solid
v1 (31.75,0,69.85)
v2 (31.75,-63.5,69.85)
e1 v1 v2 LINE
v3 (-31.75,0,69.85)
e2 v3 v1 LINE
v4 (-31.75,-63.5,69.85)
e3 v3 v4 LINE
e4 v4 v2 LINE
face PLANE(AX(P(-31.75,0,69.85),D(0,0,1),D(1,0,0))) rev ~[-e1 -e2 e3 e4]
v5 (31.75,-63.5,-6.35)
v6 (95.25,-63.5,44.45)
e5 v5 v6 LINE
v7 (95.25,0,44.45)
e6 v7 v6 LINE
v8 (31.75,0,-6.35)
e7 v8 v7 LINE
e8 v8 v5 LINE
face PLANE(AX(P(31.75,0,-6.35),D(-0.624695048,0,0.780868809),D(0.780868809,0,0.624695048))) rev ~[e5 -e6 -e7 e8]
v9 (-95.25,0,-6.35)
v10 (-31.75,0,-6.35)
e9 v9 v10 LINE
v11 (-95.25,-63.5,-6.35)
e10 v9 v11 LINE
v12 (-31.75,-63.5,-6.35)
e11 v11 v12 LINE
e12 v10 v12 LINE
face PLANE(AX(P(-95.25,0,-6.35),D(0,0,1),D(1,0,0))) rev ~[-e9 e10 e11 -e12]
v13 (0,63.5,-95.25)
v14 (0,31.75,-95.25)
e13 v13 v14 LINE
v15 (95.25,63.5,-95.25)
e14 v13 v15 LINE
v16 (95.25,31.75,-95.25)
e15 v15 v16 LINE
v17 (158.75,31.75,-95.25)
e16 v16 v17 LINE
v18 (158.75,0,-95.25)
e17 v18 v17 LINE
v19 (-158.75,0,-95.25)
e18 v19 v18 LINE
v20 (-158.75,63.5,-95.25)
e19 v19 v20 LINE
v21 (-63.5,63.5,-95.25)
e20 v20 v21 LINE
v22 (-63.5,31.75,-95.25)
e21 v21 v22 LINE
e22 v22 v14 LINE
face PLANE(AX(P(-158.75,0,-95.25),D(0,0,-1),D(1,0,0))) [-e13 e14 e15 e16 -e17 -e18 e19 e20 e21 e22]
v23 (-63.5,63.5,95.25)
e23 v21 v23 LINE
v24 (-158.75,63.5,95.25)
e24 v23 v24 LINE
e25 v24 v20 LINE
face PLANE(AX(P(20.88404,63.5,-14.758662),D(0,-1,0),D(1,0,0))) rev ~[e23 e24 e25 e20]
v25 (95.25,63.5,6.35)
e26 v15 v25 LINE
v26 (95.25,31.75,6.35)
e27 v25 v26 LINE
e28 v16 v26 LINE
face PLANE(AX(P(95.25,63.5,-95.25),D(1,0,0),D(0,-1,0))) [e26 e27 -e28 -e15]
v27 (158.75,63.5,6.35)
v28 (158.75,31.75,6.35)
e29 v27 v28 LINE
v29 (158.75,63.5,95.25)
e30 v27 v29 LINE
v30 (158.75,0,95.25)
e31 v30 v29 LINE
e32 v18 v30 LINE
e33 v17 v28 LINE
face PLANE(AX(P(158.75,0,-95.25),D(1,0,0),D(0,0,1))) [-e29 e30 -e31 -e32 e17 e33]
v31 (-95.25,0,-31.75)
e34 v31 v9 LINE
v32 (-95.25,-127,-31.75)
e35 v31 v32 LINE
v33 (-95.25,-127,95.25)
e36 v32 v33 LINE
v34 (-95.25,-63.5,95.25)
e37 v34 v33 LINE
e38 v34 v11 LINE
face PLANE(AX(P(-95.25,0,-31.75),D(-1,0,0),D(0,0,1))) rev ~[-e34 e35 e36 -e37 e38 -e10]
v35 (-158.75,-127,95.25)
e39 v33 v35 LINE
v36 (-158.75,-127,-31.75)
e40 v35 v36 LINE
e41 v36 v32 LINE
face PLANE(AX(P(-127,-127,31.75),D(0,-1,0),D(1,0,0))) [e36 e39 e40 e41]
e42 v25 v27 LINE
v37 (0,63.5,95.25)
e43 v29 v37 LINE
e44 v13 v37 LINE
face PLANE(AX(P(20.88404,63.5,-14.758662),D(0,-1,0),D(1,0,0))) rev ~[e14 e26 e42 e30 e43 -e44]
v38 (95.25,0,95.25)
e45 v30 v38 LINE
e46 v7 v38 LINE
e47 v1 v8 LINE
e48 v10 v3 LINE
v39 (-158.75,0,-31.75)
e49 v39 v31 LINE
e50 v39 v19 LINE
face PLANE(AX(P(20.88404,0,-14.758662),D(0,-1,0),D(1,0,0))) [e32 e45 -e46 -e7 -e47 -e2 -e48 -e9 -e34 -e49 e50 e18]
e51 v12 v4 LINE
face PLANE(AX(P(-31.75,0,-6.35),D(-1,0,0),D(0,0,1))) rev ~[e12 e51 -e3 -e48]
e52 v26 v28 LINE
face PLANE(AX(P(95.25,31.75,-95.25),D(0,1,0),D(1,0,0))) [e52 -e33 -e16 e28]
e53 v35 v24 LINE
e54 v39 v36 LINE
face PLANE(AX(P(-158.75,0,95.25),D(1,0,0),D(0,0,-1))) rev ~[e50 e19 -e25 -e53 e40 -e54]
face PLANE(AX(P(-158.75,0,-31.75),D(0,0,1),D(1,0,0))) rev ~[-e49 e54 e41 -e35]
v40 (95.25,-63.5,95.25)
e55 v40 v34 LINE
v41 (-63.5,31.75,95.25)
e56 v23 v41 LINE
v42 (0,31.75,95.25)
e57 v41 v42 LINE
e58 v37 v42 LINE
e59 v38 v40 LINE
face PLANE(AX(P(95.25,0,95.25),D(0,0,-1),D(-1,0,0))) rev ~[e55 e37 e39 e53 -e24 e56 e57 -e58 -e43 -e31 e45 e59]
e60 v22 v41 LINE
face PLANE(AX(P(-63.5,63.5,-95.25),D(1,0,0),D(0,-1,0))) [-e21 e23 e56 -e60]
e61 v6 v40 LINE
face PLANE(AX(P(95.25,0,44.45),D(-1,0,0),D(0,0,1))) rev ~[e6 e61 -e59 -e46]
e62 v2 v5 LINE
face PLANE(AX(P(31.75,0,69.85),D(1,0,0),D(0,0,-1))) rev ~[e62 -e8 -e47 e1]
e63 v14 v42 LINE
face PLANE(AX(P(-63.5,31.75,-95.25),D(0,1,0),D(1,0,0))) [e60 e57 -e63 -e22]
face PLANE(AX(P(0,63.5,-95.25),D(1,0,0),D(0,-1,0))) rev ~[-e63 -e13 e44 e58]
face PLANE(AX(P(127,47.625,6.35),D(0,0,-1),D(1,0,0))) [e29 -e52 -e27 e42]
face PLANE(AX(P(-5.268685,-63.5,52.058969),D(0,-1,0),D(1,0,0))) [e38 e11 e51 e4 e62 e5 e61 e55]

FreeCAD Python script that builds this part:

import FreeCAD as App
import Part
import Sketcher

V = App.Vector
Q = App.Units.Quantity


def add_polygon(sketch, points):
    """Adds a closed chain of lines whose ends are joined by coincident constraints."""
    first, n = sketch.GeometryCount, len(points)
    for a, b in zip(points, points[1:] + points[:1]):
        sketch.addGeometry(Part.LineSegment(App.Vector(*a, 0), App.Vector(*b, 0)), False)
    for i in range(n):
        sketch.addConstraint(Sketcher.Constraint("Coincident", first + i, 2, first + (i + 1) % n, 1))

doc = App.newDocument("Part")
body = doc.addObject("PartDesign::Body", "Body")

sketch1 = body.newObject("Sketcher::SketchObject", "Sketch")
sketch1.AttachmentSupport = (doc.getObject("XZ_Plane"), [""])
sketch1.MapMode = "FlatFace"
add_polygon(sketch1, [(-159, -95), (159, -95), (159, 95), (-159, 95)])
sketch1.addConstraint([
    Sketcher.Constraint("Horizontal", 0),
    Sketcher.Constraint("Vertical", 1),
    Sketcher.Constraint("Horizontal", 2),
    Sketcher.Constraint("Vertical", 3),
    Sketcher.Constraint("Symmetric", 0, 2, 2, 2, -1, 1),
    Sketcher.Constraint("DistanceX", 0, 1, 0, 2, Q("12.5 in")),
    Sketcher.Constraint("DistanceY", 1, 1, 1, 2, Q("7.5 in")),
])
pad1 = body.newObject("PartDesign::Pad", "Pad")
pad1.Profile = sketch1
pad1.Length = Q("2.5 in")
pad1.Reversed = True

sketch2 = body.newObject("Sketcher::SketchObject", "Sketch001")
sketch2.AttachmentSupport = (doc.getObject("XZ_Plane"), [""])
sketch2.MapMode = "FlatFace"
add_polygon(sketch2, [(-159, 95), (-159, -32), (-95, -32), (-95, 95)])
sketch2.addConstraint([
    Sketcher.Constraint("Vertical", 0),
    Sketcher.Constraint("Horizontal", 1),
    Sketcher.Constraint("Vertical", 2),
    Sketcher.Constraint("Horizontal", 3),
    Sketcher.Constraint("DistanceY", 0, 2, 0, 1, Q("5 in")),
    Sketcher.Constraint("DistanceX", 1, 1, 1, 2, Q("2.5 in")),
    Sketcher.Constraint("DistanceX", 0, 2, -1, 1, Q("6.25 in")),
    Sketcher.Constraint("DistanceY", 0, 2, -1, 1, Q("1.25 in")),
])
pad2 = body.newObject("PartDesign::Pad", "Pad001")
pad2.Profile = sketch2
pad2.Length = Q("5 in")

sketch3 = body.newObject("Sketcher::SketchObject", "Sketch002")
sketch3.AttachmentSupport = (doc.getObject("XZ_Plane"), [""])
sketch3.MapMode = "FlatFace"
add_polygon(sketch3, [(95, 44), (95, 95), (-95, 95), (-95, -6), (-32, -6), (-32, 70), (32, 70), (32, -6)])
sketch3.addConstraint([
    Sketcher.Constraint("Vertical", 0),
    Sketcher.Constraint("Horizontal", 1),
    Sketcher.Constraint("Vertical", 2),
    Sketcher.Constraint("Horizontal", 3),
    Sketcher.Constraint("Vertical", 4),
    Sketcher.Constraint("Horizontal", 5),
    Sketcher.Constraint("Vertical", 6),
    Sketcher.Constraint("Symmetric", 3, 2, 6, 2, -2),
    Sketcher.Constraint("Equal", 3, 5),
    Sketcher.Constraint("DistanceY", 0, 1, 0, 2, Q("2 in")),
    Sketcher.Constraint("DistanceY", 2, 2, 2, 1, Q("4 in")),
    Sketcher.Constraint("DistanceY", 4, 1, 4, 2, Q("3 in")),
    Sketcher.Constraint("DistanceX", 1, 2, 1, 1, Q("7.5 in")),
    Sketcher.Constraint("DistanceX", 3, 1, 3, 2, Q("2.5 in")),
    Sketcher.Constraint("DistanceY", -1, 1, 0, 2, Q("3.75 in")),
])
pad3 = body.newObject("PartDesign::Pad", "Pad002")
pad3.Profile = sketch3
pad3.Length = Q("2.5 in")

sketch4 = body.newObject("Sketcher::SketchObject", "Sketch003")
sketch4.AttachmentSupport = (doc.getObject("XY_Plane"), [""])
sketch4.MapMode = "FlatFace"
sketch4.AttachmentOffset = App.Placement(V(0, 0, -3.75 * 25.4), App.Rotation())
add_polygon(sketch4, [(95, 32), (95, 64), (159, 64), (159, 32)])
sketch4.addConstraint([
    Sketcher.Constraint("Vertical", 0),
    Sketcher.Constraint("Horizontal", 1),
    Sketcher.Constraint("Vertical", 2),
    Sketcher.Constraint("Horizontal", 3),
    Sketcher.Constraint("DistanceX", 1, 1, 1, 2, Q("2.5 in")),
    Sketcher.Constraint("DistanceY", 0, 1, 0, 2, Q("1.25 in")),
    Sketcher.Constraint("DistanceY", -1, 1, 0, 2, Q("2.5 in")),
    Sketcher.Constraint("DistanceX", -1, 1, 0, 2, Q("3.75 in")),
])
pocket1 = body.newObject("PartDesign::Pocket", "Pocket")
pocket1.Profile = sketch4
pocket1.Length = Q("4 in")
pocket1.Reversed = True

sketch5 = body.newObject("Sketcher::SketchObject", "Sketch004")
sketch5.AttachmentSupport = (doc.getObject("XY_Plane"), [""])
sketch5.MapMode = "FlatFace"
sketch5.AttachmentOffset = App.Placement(V(0, 0, -3.75 * 25.4), App.Rotation())
add_polygon(sketch5, [(-64, 32), (-64, 64), (0, 64), (0, 32)])
sketch5.addConstraint([
    Sketcher.Constraint("Vertical", 0),
    Sketcher.Constraint("Horizontal", 1),
    Sketcher.Constraint("Vertical", 2),
    Sketcher.Constraint("Horizontal", 3),
    Sketcher.Constraint("PointOnObject", 1, 2, -2),
    Sketcher.Constraint("DistanceX", 1, 1, 1, 2, Q("2.5 in")),
    Sketcher.Constraint("DistanceY", 0, 1, 0, 2, Q("1.25 in")),
    Sketcher.Constraint("DistanceY", -1, 1, 0, 2, Q("2.5 in")),
])
pocket2 = body.newObject("PartDesign::Pocket", "Pocket001")
pocket2.Profile = sketch5
pocket2.Type = "ThroughAll"
pocket2.Reversed = True

doc.recompute()
